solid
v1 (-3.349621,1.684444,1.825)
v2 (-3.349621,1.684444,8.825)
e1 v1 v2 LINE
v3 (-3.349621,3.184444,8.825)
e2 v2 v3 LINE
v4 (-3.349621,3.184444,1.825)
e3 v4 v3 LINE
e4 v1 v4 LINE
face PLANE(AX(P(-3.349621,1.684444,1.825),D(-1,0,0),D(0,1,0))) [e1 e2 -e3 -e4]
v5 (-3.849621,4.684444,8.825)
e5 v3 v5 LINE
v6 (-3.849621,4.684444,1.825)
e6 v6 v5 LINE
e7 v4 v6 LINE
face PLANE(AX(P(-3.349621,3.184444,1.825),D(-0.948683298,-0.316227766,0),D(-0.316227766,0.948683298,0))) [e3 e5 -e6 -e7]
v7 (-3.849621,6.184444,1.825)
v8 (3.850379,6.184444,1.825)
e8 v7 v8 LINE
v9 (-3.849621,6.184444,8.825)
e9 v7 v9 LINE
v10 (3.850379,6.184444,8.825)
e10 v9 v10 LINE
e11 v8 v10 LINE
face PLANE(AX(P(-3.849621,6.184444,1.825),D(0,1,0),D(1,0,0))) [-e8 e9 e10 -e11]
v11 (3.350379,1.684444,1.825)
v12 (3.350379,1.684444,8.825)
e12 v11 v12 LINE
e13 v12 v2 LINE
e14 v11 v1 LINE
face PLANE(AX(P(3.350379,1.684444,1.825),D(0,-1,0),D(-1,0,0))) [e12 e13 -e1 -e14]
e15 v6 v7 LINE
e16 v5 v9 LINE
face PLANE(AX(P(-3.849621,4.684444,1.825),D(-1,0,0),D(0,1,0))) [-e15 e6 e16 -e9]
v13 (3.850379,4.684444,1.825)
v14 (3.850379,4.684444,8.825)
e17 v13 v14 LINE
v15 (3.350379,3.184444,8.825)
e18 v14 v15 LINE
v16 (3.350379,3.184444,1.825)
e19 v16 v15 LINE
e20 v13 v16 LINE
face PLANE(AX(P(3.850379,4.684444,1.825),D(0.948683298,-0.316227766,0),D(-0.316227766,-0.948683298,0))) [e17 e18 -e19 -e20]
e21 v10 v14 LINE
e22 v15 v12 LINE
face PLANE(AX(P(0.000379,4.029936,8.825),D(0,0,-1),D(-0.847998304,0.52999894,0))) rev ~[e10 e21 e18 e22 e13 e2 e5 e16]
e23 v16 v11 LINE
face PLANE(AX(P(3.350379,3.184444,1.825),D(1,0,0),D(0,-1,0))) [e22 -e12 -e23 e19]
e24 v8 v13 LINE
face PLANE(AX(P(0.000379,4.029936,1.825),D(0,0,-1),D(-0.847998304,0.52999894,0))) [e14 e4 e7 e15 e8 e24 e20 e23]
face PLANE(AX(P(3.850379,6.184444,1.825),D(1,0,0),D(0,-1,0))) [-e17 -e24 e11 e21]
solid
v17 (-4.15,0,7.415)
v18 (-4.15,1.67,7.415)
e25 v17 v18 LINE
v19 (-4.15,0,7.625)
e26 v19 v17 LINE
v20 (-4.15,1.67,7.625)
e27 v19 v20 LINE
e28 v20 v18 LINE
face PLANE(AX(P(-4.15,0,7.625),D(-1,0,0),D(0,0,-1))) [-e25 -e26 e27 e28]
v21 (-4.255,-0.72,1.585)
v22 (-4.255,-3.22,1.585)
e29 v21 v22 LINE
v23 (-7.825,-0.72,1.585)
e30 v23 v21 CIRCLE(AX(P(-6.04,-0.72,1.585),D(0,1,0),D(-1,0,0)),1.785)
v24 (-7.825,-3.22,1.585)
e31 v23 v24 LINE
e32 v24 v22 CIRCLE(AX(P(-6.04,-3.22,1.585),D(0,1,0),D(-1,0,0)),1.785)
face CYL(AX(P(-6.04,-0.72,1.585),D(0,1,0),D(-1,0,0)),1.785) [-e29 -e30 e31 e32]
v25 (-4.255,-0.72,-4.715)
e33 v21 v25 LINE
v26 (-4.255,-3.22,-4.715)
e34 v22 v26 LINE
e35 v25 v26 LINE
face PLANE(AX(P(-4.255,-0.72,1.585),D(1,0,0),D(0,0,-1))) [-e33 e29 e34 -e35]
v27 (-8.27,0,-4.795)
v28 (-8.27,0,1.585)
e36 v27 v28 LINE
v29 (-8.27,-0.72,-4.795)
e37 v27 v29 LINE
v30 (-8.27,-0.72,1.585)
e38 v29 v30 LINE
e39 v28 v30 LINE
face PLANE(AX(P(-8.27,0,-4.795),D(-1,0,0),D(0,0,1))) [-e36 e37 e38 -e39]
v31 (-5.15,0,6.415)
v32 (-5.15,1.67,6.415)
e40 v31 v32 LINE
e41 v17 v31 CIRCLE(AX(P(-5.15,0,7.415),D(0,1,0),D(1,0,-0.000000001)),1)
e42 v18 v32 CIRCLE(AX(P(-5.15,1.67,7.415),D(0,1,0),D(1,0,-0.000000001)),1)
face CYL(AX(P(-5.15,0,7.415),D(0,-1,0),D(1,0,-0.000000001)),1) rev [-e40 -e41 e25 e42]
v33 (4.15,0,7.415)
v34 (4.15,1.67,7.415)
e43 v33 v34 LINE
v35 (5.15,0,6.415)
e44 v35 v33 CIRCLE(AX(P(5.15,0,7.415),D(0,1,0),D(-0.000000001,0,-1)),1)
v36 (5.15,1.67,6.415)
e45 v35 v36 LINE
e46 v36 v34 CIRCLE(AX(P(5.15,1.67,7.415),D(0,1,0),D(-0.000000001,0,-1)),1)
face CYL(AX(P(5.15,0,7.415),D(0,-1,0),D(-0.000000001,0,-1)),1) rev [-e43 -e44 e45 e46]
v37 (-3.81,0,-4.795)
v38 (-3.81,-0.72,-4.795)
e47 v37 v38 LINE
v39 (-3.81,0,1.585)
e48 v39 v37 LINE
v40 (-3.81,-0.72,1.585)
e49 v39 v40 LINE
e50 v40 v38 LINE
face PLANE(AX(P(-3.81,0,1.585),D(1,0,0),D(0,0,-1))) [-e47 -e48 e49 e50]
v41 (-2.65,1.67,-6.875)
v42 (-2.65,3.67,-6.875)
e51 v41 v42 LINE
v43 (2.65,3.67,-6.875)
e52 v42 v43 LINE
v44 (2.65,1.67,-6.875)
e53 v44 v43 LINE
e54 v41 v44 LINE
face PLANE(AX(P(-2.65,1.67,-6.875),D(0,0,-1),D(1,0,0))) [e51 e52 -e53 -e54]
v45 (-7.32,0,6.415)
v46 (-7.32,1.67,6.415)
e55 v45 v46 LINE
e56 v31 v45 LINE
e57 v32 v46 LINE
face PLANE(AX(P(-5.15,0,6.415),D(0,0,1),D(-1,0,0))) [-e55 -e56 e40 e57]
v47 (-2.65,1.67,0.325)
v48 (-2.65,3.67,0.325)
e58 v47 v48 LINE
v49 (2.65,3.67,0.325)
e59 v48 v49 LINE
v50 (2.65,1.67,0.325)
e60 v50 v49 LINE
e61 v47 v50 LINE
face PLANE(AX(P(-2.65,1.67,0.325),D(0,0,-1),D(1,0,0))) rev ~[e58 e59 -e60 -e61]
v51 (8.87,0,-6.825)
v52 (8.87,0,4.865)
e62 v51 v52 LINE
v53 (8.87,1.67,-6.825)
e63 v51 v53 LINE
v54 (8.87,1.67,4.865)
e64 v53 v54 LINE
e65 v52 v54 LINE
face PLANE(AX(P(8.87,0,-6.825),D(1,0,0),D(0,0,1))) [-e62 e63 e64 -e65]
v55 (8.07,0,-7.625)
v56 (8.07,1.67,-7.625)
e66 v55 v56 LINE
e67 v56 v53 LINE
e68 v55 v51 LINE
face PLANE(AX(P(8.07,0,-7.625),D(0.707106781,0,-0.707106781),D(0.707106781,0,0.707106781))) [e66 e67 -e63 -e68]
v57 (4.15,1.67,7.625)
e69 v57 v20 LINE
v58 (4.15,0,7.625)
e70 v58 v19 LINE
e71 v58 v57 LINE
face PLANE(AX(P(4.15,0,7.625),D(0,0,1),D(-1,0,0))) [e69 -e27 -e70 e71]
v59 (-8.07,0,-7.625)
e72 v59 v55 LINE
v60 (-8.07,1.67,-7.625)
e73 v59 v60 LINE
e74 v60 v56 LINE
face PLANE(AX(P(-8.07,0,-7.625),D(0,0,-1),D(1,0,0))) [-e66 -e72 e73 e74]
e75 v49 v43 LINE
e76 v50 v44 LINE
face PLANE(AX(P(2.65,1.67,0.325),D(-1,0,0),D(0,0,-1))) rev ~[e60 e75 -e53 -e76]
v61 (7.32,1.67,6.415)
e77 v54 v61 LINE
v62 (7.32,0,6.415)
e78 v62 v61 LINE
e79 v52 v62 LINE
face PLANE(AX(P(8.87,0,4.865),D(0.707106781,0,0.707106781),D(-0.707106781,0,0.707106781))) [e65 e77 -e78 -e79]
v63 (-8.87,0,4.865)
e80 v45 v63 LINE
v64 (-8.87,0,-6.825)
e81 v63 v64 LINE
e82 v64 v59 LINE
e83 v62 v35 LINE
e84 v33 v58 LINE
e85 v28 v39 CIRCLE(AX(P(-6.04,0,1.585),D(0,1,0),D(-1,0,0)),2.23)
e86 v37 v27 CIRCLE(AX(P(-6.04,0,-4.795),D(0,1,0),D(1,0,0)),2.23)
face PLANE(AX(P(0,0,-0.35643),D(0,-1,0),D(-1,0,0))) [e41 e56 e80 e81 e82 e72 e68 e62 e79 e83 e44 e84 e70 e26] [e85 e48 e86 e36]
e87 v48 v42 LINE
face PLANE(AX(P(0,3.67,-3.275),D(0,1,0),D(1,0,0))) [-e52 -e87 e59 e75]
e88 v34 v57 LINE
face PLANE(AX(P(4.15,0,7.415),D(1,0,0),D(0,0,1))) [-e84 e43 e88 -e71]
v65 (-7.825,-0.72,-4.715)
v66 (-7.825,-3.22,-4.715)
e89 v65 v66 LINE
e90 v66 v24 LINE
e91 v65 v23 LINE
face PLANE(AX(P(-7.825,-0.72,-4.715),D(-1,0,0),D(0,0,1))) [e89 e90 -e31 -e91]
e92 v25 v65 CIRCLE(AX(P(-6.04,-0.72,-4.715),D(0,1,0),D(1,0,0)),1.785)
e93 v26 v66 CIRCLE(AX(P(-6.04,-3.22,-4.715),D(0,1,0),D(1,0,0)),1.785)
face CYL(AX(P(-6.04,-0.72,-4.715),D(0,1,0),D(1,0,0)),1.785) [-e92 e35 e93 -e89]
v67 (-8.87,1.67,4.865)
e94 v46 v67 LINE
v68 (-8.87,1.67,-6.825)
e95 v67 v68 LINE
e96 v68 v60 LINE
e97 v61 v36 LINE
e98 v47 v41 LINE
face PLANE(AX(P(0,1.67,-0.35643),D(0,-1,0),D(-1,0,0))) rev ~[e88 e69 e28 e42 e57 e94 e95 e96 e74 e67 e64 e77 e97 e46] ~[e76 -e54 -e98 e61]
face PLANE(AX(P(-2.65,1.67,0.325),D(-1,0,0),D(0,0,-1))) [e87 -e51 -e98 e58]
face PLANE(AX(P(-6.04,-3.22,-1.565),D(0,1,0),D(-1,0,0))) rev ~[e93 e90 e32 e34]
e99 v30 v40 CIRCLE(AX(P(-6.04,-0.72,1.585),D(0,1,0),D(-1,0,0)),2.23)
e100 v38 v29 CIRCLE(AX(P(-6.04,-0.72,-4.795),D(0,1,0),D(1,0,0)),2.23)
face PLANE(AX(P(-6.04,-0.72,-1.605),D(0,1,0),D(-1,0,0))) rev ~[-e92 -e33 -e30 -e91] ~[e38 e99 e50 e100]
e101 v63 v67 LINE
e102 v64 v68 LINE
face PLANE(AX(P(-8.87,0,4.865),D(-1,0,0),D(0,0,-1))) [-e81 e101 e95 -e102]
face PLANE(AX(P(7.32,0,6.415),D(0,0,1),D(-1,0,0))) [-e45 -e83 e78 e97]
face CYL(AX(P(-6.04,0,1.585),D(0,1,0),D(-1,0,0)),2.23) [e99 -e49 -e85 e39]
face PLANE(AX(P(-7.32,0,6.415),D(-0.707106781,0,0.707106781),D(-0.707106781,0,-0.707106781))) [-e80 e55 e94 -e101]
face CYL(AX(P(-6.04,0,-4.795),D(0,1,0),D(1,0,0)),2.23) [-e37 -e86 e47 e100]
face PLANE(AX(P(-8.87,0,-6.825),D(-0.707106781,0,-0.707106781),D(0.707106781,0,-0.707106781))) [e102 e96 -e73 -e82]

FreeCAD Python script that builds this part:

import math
import FreeCAD as App
import Part
import Sketcher
from FreeCAD import Vector

doc = App.newDocument("Part")
body = doc.addObject("PartDesign::Body", "Body")

# Sketch on XZ plane
sketch1 = doc.addObject("Sketcher::SketchObject", "Sketch")
body.addObject(sketch1)
sketch1.AttachmentSupport = (doc.XZ_Plane, [""])
sketch1.MapMode = "FlatFace"
sketch1.addGeometry(Part.LineSegment(Vector(8.07, -7.62, 0), Vector(-8.07, -7.62, 0)), False)
sketch1.addGeometry(Part.LineSegment(Vector(-8.07, -7.62, 0), Vector(-8.87, -6.83, 0)), False)
sketch1.addGeometry(Part.LineSegment(Vector(-8.87, -6.83, 0), Vector(-8.87, 4.87, 0)), False)
sketch1.addGeometry(Part.LineSegment(Vector(-8.87, 4.87, 0), Vector(-7.32, 6.42, 0)), False)
sketch1.addGeometry(Part.LineSegment(Vector(-7.32, 6.42, 0), Vector(-5.15, 6.42, 0)), False)
sketch1.addGeometry(Part.ArcOfCircle(Part.Circle(Vector(-5.15, 7.42, 0), Vector(0, 0, 1), 1), math.radians(-90), math.radians(0)), False)
sketch1.addGeometry(Part.LineSegment(Vector(-4.15, 7.42, 0), Vector(-4.15, 7.62, 0)), False)
sketch1.addGeometry(Part.LineSegment(Vector(-4.15, 7.62, 0), Vector(4.15, 7.62, 0)), False)
sketch1.addGeometry(Part.LineSegment(Vector(4.15, 7.62, 0), Vector(4.15, 7.42, 0)), False)
sketch1.addGeometry(Part.ArcOfCircle(Part.Circle(Vector(5.15, 7.42, 0), Vector(0, 0, 1), 1), math.radians(-180), math.radians(-90)), False)
sketch1.addGeometry(Part.LineSegment(Vector(5.15, 6.42, 0), Vector(7.32, 6.42, 0)), False)
sketch1.addGeometry(Part.LineSegment(Vector(7.32, 6.42, 0), Vector(8.87, 4.87, 0)), False)
sketch1.addGeometry(Part.LineSegment(Vector(8.87, 4.87, 0), Vector(8.87, -6.83, 0)), False)
sketch1.addGeometry(Part.LineSegment(Vector(8.87, -6.83, 0), Vector(8.07, -7.62, 0)), False)
sketch1.addConstraint(Sketcher.Constraint("Coincident", 0, 2, 1, 1))
sketch1.addConstraint(Sketcher.Constraint("Coincident", 1, 2, 2, 1))
sketch1.addConstraint(Sketcher.Constraint("Coincident", 2, 2, 3, 1))
sketch1.addConstraint(Sketcher.Constraint("Coincident", 3, 2, 4, 1))
sketch1.addConstraint(Sketcher.Constraint("Tangent", 4, 2, 5, 1))
sketch1.addConstraint(Sketcher.Constraint("Tangent", 5, 2, 6, 1))
sketch1.addConstraint(Sketcher.Constraint("Coincident", 6, 2, 7, 1))
sketch1.addConstraint(Sketcher.Constraint("Coincident", 7, 2, 8, 1))
sketch1.addConstraint(Sketcher.Constraint("Tangent", 8, 2, 9, 1))
sketch1.addConstraint(Sketcher.Constraint("Tangent", 9, 2, 10, 1))
sketch1.addConstraint(Sketcher.Constraint("Coincident", 10, 2, 11, 1))
sketch1.addConstraint(Sketcher.Constraint("Coincident", 11, 2, 12, 1))
sketch1.addConstraint(Sketcher.Constraint("Coincident", 12, 2, 13, 1))
sketch1.addConstraint(Sketcher.Constraint("Coincident", 13, 2, 0, 1))
sketch1.addConstraint(Sketcher.Constraint("Horizontal", 0))
sketch1.addConstraint(Sketcher.Constraint("Vertical", 2))
sketch1.addConstraint(Sketcher.Constraint("Horizontal", 4))
sketch1.addConstraint(Sketcher.Constraint("Vertical", 6))
sketch1.addConstraint(Sketcher.Constraint("Horizontal", 7))
sketch1.addConstraint(Sketcher.Constraint("Vertical", 8))
sketch1.addConstraint(Sketcher.Constraint("Horizontal", 10))
sketch1.addConstraint(Sketcher.Constraint("Vertical", 12))
sketch1.addConstraint(Sketcher.Constraint("Equal", 5, 9))
sketch1.addConstraint(Sketcher.Constraint("Symmetric", 5, 3, 9, 3, -2))
sketch1.addConstraint(Sketcher.Constraint("Symmetric", 2, 2, 11, 2, -2))
sketch1.addConstraint(Sketcher.Constraint("Perpendicular", 1, 3))
sketch1.addConstraint(Sketcher.Constraint("Perpendicular", 3, 11))
sketch1.addConstraint(Sketcher.Constraint("Perpendicular", 11, 13))
sketch1.addConstraint(Sketcher.Constraint("Horizontal", 1, 2, 12, 2))
sketch1.addConstraint(Sketcher.Constraint("Equal", 4, 10))
sketch1.addConstraint(Sketcher.Constraint("Radius", 5, 1.0))
sketch1.addConstraint(Sketcher.Constraint("DistanceX", 7, 1, 7, 2, 8.3))
sketch1.addConstraint(Sketcher.Constraint("DistanceX", 0, 2, 0, 1, 16.14))
sketch1.addConstraint(Sketcher.Constraint("DistanceX", 4, 1, 4, 2, 2.17))
sketch1.addConstraint(Sketcher.Constraint("DistanceY", 2, 1, 2, 2, 11.69))
sketch1.addConstraint(Sketcher.Constraint("DistanceY", 6, 1, 6, 2, 0.21))
sketch1.addConstraint(Sketcher.Constraint("DistanceX", 1, 2, 0, 2, 0.8))
sketch1.addConstraint(Sketcher.Constraint("DistanceY", -1, 1, 5, 3, 7.415))
pad1 = doc.addObject("PartDesign::Pad", "Pad")
body.addObject(pad1)
pad1.Profile = sketch1
pad1.Length = 1.67
pad1.Reversed = True

# Sketch on XZ plane
sketch2 = doc.addObject("Sketcher::SketchObject", "Sketch001")
body.addObject(sketch2)
sketch2.AttachmentSupport = (doc.XZ_Plane, [""])
sketch2.MapMode = "FlatFace"
sketch2.AttachmentOffset = App.Placement(Vector(0, 0, -1.67), App.Rotation())
sketch2.addGeometry(Part.LineSegment(Vector(-3, -7, 0), Vector(-3, 0, 0)), False)
sketch2.addGeometry(Part.LineSegment(Vector(-3, 0, 0), Vector(3, 0, 0)), False)
sketch2.addGeometry(Part.LineSegment(Vector(3, 0, 0), Vector(3, -7, 0)), False)
sketch2.addGeometry(Part.LineSegment(Vector(3, -7, 0), Vector(-3, -7, 0)), False)
sketch2.addConstraint(Sketcher.Constraint("Coincident", 0, 2, 1, 1))
sketch2.addConstraint(Sketcher.Constraint("Coincident", 1, 2, 2, 1))
sketch2.addConstraint(Sketcher.Constraint("Coincident", 2, 2, 3, 1))
sketch2.addConstraint(Sketcher.Constraint("Coincident", 3, 2, 0, 1))
sketch2.addConstraint(Sketcher.Constraint("Vertical", 0))
sketch2.addConstraint(Sketcher.Constraint("Horizontal", 1))
sketch2.addConstraint(Sketcher.Constraint("Vertical", 2))
sketch2.addConstraint(Sketcher.Constraint("Horizontal", 3))
sketch2.addConstraint(Sketcher.Constraint("DistanceX", 1, 1, 1, 2, 5.3))
sketch2.addConstraint(Sketcher.Constraint("DistanceY", 0, 1, 0, 2, 7.2))
sketch2.addConstraint(Sketcher.Constraint("DistanceX", 0, 2, -1, 1, 2.65))
sketch2.addConstraint(Sketcher.Constraint("DistanceY", -1, 1, 0, 2, 0.325))
pad2 = doc.addObject("PartDesign::Pad", "Pad001")
body.addObject(pad2)
pad2.Profile = sketch2
pad2.Length = 2
pad2.Reversed = True

# Sketch on XZ plane
sketch3 = doc.addObject("Sketcher::SketchObject", "Sketch002")
body.addObject(sketch3)
sketch3.AttachmentSupport = (doc.XZ_Plane, [""])
sketch3.MapMode = "FlatFace"
sketch3.addGeometry(Part.LineSegment(Vector(-3.8, -4.8, 0), Vector(-3.8, 1.6, 0)), False)
sketch3.addGeometry(Part.ArcOfCircle(Part.Circle(Vector(-6, 1.6, 0), Vector(0, 0, 1), 2.2), math.radians(0), math.radians(180)), False)
sketch3.addGeometry(Part.LineSegment(Vector(-8.3, 1.6, 0), Vector(-8.3, -4.8, 0)), False)
sketch3.addGeometry(Part.ArcOfCircle(Part.Circle(Vector(-6, -4.8, 0), Vector(0, 0, 1), 2.2), math.radians(180), math.radians(360)), False)
sketch3.addConstraint(Sketcher.Constraint("Tangent", 0, 2, 1, 1))
sketch3.addConstraint(Sketcher.Constraint("Tangent", 1, 2, 2, 1))
sketch3.addConstraint(Sketcher.Constraint("Tangent", 2, 2, 3, 1))
sketch3.addConstraint(Sketcher.Constraint("Tangent", 3, 2, 0, 1))
sketch3.addConstraint(Sketcher.Constraint("Vertical", 0))
sketch3.addConstraint(Sketcher.Constraint("Vertical", 2))
sketch3.addConstraint(Sketcher.Constraint("Radius", 1, 2.23))
sketch3.addConstraint(Sketcher.Constraint("DistanceY", 0, 1, 0, 2, 6.38))
sketch3.addConstraint(Sketcher.Constraint("DistanceX", 1, 3, -1, 1, 6.04))
sketch3.addConstraint(Sketcher.Constraint("DistanceY", -1, 1, 1, 3, 1.585))
pad3 = doc.addObject("PartDesign::Pad", "Pad002")
body.addObject(pad3)
pad3.Profile = sketch3
pad3.Length = 0.72

# Sketch on XZ plane
sketch4 = doc.addObject("Sketcher::SketchObject", "Sketch003")
body.addObject(sketch4)
sketch4.AttachmentSupport = (doc.XZ_Plane, [""])
sketch4.MapMode = "FlatFace"
sketch4.AttachmentOffset = App.Placement(Vector(0, 0, 0.72), App.Rotation())
sketch4.addGeometry(Part.LineSegment(Vector(-4.3, -4.7, 0), Vector(-4.3, 1.6, 0)), False)
sketch4.addGeometry(Part.ArcOfCircle(Part.Circle(Vector(-6, 1.6, 0), Vector(0, 0, 1), 1.8), math.radians(0), math.radians(180)), False)
sketch4.addGeometry(Part.LineSegment(Vector(-7.8, 1.6, 0), Vector(-7.8, -4.7, 0)), False)
sketch4.addGeometry(Part.ArcOfCircle(Part.Circle(Vector(-6, -4.7, 0), Vector(0, 0, 1), 1.8), math.radians(180), math.radians(360)), False)
sketch4.addConstraint(Sketcher.Constraint("Tangent", 0, 2, 1, 1))
sketch4.addConstraint(Sketcher.Constraint("Tangent", 1, 2, 2, 1))
sketch4.addConstraint(Sketcher.Constraint("Tangent", 2, 2, 3, 1))
sketch4.addConstraint(Sketcher.Constraint("Tangent", 3, 2, 0, 1))
sketch4.addConstraint(Sketcher.Constraint("Vertical", 0))
sketch4.addConstraint(Sketcher.Constraint("Vertical", 2))
sketch4.addConstraint(Sketcher.Constraint("DistanceY", 0, 1, 0, 2, 6.3))
sketch4.addConstraint(Sketcher.Constraint("Radius", 1, 1.785))
sketch4.addConstraint(Sketcher.Constraint("DistanceX", 1, 3, -1, 1, 6.04))
sketch4.addConstraint(Sketcher.Constraint("DistanceY", -1, 1, 1, 3, 1.585))
pad4 = doc.addObject("PartDesign::Pad", "Pad003")
body.addObject(pad4)
pad4.Profile = sketch4
pad4.Length = 2.5
body2 = doc.addObject("PartDesign::Body", "Body001")

# Sketch on XY plane
sketch5 = doc.addObject("Sketcher::SketchObject", "Sketch004")
body2.addObject(sketch5)
sketch5.AttachmentSupport = (doc.getObject("XY_Plane001"), [""])
sketch5.MapMode = "FlatFace"
sketch5.AttachmentOffset = App.Placement(Vector(0, 0, 1.825), App.Rotation())
sketch5.addGeometry(Part.LineSegment(Vector(3.9, 6.2, 0), Vector(-3.8, 6.2, 0)), False)
sketch5.addGeometry(Part.LineSegment(Vector(-3.8, 6.2, 0), Vector(-3.8, 4.7, 0)), False)
sketch5.addGeometry(Part.LineSegment(Vector(-3.8, 4.7, 0), Vector(-3.3, 3.2, 0)), False)
sketch5.addGeometry(Part.LineSegment(Vector(-3.3, 3.2, 0), Vector(-3.3, 1.7, 0)), False)
sketch5.addGeometry(Part.LineSegment(Vector(-3.3, 1.7, 0), Vector(3.4, 1.7, 0)), False)
sketch5.addGeometry(Part.LineSegment(Vector(3.4, 1.7, 0), Vector(3.4, 3.2, 0)), False)
sketch5.addGeometry(Part.LineSegment(Vector(3.4, 3.2, 0), Vector(3.9, 4.7, 0)), False)
sketch5.addGeometry(Part.LineSegment(Vector(3.9, 4.7, 0), Vector(3.9, 6.2, 0)), False)
sketch5.addConstraint(Sketcher.Constraint("Coincident", 0, 2, 1, 1))
sketch5.addConstraint(Sketcher.Constraint("Coincident", 1, 2, 2, 1))
sketch5.addConstraint(Sketcher.Constraint("Coincident", 2, 2, 3, 1))
sketch5.addConstraint(Sketcher.Constraint("Coincident", 3, 2, 4, 1))
sketch5.addConstraint(Sketcher.Constraint("Coincident", 4, 2, 5, 1))
sketch5.addConstraint(Sketcher.Constraint("Coincident", 5, 2, 6, 1))
sketch5.addConstraint(Sketcher.Constraint("Coincident", 6, 2, 7, 1))
sketch5.addConstraint(Sketcher.Constraint("Coincident", 7, 2, 0, 1))
sketch5.addConstraint(Sketcher.Constraint("Horizontal", 0))
sketch5.addConstraint(Sketcher.Constraint("Vertical", 1))
sketch5.addConstraint(Sketcher.Constraint("Vertical", 3))
sketch5.addConstraint(Sketcher.Constraint("Horizontal", 4))
sketch5.addConstraint(Sketcher.Constraint("Vertical", 5))
sketch5.addConstraint(Sketcher.Constraint("Vertical", 7))
sketch5.addConstraint(Sketcher.Constraint("Horizontal", 2, 2, 5, 2))
sketch5.addConstraint(Sketcher.Constraint("Horizontal", 1, 2, 6, 2))
sketch5.addConstraint(Sketcher.Constraint("Equal", 1, 3))
sketch5.addConstraint(Sketcher.Constraint("Equal", 2, 6))
sketch5.addConstraint(Sketcher.Constraint("DistanceX", 0, 2, 0, 1, 7.7))
sketch5.addConstraint(Sketcher.Constraint("DistanceX", 4, 1, 4, 2, 6.7))
sketch5.addConstraint(Sketcher.Constraint("DistanceY", 1, 2, 1, 1, 1.5))
sketch5.addConstraint(Sketcher.Constraint("DistanceY", 2, 2, 0, 2, 3.0))
sketch5.addConstraint(Sketcher.Constraint("DistanceX", 0, 2, -1, 1, 3.849621))
sketch5.addConstraint(Sketcher.Constraint("DistanceY", -1, 1, 0, 2, 6.184444))
pad5 = doc.addObject("PartDesign::Pad", "Pad004")
body2.addObject(pad5)
pad5.Profile = sketch5
pad5.Length = 7

doc.recompute()
